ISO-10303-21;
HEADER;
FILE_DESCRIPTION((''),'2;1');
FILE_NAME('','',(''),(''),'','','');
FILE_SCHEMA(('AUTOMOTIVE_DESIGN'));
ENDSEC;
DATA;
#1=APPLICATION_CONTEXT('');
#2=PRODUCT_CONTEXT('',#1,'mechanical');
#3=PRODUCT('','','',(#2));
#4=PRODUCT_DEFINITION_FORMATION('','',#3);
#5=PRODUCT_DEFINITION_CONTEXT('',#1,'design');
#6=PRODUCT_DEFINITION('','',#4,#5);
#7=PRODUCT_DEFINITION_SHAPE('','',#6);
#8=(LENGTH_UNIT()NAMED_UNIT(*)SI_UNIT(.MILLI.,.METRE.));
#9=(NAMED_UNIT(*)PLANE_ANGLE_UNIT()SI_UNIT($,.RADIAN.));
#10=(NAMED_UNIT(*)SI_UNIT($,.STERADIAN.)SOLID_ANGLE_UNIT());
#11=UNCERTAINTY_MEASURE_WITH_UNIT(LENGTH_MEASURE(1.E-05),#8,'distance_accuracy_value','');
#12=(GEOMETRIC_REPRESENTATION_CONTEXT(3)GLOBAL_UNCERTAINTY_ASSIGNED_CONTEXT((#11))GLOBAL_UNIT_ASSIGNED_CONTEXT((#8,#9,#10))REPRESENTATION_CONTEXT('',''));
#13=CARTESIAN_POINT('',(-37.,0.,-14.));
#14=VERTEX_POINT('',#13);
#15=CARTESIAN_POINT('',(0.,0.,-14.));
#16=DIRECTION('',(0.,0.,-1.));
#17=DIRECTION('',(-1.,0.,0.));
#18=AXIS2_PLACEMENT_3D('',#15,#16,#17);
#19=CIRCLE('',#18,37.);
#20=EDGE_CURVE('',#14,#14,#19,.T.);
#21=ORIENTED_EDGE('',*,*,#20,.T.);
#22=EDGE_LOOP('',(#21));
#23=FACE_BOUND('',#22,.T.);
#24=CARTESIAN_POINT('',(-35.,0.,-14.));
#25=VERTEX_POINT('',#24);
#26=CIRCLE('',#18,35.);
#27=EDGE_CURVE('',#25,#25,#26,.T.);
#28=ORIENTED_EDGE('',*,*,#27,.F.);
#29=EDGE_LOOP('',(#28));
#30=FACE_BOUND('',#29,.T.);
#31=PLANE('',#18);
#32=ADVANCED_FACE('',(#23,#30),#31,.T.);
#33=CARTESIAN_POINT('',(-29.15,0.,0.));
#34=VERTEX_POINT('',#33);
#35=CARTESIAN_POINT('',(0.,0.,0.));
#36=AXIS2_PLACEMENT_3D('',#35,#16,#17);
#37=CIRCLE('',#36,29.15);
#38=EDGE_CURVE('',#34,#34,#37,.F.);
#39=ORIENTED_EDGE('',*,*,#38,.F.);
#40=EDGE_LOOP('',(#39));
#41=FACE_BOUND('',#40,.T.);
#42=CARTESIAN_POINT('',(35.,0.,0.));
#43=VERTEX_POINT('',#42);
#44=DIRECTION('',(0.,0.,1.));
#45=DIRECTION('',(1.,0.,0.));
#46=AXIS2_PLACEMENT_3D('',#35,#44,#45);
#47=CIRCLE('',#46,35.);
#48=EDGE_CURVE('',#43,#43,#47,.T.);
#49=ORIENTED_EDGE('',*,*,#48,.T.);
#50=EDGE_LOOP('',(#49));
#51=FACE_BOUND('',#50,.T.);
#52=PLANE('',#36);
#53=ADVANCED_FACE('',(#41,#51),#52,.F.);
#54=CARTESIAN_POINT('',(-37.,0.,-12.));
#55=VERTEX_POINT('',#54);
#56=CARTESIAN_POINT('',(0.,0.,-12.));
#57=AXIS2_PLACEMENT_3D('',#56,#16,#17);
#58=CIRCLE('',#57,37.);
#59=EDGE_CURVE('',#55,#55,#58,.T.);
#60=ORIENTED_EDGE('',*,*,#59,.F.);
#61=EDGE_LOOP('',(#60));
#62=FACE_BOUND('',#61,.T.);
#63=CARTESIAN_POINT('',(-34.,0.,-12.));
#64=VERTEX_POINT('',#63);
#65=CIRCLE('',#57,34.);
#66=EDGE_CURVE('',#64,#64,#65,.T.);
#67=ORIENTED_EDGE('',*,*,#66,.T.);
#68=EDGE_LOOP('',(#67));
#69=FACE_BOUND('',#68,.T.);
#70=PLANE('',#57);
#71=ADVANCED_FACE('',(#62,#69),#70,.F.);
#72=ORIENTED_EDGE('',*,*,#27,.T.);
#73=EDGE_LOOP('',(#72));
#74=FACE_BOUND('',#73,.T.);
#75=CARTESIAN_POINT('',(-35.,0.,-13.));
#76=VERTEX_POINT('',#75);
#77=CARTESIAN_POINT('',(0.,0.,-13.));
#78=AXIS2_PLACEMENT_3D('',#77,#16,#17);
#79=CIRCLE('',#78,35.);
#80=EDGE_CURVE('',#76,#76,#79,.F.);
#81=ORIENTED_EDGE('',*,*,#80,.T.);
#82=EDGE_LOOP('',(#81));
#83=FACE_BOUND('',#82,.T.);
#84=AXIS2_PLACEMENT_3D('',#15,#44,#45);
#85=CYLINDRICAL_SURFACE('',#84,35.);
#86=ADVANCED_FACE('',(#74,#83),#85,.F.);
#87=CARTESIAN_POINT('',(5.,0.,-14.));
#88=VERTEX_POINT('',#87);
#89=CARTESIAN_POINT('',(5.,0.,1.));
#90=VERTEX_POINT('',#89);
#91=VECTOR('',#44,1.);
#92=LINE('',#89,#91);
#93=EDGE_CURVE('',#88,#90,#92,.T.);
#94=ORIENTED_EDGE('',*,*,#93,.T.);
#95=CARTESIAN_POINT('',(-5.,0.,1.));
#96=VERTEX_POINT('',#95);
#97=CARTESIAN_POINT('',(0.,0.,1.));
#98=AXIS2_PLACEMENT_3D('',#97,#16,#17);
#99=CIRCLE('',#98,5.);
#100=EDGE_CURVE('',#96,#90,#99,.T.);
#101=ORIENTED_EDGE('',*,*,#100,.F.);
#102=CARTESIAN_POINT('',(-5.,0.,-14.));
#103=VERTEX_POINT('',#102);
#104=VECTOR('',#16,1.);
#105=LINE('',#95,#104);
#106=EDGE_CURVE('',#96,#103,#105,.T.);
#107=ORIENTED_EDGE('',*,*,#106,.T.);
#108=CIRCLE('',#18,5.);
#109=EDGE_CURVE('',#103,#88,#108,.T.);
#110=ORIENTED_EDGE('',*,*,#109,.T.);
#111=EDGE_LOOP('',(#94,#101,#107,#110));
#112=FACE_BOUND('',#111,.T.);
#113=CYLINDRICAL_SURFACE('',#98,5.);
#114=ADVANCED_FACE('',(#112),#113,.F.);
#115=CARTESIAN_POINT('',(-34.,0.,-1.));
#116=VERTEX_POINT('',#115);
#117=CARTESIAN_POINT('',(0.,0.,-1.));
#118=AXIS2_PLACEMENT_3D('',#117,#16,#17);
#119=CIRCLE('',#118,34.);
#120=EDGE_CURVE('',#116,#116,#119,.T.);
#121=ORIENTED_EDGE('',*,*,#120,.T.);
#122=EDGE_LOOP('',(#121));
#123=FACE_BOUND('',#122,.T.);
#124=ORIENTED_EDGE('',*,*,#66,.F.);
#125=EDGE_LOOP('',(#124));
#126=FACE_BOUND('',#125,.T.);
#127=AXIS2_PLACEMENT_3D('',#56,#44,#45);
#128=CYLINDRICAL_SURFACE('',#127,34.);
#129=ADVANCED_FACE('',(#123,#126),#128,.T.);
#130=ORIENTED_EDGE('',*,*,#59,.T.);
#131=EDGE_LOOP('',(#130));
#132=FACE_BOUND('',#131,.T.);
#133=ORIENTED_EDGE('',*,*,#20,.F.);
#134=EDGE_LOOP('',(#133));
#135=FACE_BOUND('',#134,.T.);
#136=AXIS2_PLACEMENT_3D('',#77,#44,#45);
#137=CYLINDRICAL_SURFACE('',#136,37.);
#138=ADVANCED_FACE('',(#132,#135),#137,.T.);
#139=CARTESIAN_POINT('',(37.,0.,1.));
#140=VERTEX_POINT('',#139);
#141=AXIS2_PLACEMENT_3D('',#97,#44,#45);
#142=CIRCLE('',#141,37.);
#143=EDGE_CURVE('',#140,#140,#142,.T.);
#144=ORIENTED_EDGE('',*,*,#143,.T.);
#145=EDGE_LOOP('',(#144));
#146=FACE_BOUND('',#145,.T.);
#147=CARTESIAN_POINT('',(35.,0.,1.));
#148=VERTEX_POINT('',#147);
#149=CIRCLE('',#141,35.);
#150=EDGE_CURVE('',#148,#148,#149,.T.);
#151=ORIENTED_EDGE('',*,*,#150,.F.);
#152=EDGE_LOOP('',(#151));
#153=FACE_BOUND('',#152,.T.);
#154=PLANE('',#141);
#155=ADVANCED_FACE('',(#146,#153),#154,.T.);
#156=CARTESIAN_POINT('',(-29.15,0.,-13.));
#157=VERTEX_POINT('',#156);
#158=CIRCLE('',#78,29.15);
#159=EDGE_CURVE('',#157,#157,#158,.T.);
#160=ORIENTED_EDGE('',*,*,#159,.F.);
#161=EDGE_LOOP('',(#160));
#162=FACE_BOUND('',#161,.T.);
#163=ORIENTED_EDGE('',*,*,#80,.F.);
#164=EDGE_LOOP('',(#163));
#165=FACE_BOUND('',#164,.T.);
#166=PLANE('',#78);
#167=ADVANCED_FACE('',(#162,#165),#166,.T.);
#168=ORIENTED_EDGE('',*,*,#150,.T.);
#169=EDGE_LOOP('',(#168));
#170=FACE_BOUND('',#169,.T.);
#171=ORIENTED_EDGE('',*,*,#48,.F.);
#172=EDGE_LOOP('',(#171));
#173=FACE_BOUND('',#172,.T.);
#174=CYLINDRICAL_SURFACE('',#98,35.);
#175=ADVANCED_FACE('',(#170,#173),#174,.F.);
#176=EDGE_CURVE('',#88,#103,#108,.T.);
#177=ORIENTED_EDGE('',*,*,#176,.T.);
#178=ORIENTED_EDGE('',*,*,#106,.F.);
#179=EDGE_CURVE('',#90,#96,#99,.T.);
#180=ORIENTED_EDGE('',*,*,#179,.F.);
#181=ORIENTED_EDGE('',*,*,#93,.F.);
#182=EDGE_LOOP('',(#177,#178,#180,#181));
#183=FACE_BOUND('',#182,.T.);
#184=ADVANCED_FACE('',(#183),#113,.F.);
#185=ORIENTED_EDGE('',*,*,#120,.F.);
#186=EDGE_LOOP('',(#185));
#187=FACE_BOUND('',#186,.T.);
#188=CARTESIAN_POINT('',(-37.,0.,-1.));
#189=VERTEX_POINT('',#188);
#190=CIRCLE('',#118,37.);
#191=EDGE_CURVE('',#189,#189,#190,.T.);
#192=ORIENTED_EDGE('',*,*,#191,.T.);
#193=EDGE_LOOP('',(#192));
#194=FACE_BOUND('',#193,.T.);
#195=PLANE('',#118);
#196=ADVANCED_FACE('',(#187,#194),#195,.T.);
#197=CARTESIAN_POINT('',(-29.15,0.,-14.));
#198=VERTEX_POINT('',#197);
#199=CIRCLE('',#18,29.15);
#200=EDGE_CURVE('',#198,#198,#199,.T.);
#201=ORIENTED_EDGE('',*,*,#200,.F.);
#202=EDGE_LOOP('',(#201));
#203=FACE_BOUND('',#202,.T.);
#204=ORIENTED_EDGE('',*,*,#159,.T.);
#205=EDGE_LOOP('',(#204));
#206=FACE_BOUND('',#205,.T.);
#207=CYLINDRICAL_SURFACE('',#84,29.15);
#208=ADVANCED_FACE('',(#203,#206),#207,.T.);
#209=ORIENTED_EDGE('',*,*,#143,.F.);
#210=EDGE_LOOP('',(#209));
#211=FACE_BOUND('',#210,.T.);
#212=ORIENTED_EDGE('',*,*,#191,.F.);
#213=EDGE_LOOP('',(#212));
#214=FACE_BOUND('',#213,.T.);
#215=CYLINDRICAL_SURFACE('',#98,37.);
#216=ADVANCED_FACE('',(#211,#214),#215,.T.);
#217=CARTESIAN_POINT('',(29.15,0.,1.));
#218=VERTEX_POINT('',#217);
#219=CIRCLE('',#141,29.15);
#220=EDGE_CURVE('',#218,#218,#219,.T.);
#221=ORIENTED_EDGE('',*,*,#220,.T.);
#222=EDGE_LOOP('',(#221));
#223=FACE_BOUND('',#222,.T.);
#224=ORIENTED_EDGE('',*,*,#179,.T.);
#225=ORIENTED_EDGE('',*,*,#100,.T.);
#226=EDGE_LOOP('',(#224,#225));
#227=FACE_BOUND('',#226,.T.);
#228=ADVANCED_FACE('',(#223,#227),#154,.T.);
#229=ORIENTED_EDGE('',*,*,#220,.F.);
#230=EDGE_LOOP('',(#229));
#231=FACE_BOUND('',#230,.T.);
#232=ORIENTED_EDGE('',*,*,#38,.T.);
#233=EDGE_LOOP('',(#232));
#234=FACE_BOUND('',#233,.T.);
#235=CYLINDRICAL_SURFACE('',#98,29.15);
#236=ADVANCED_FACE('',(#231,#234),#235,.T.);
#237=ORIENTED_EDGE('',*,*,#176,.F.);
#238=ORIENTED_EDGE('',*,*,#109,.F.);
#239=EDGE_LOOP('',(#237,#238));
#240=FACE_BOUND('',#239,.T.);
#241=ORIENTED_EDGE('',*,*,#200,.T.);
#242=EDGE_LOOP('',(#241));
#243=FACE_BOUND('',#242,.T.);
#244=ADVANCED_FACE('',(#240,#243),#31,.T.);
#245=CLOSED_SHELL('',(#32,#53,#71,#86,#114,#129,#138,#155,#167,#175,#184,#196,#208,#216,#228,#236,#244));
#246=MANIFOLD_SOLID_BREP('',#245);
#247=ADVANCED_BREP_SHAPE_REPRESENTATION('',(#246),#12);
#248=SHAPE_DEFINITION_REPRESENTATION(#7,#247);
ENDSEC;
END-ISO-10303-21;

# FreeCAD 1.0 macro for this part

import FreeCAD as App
import Part
import Sketcher

doc = App.newDocument("Part")
body = doc.addObject("PartDesign::Body", "Body")

sketch1 = body.newObject("Sketcher::SketchObject", "Sketch")
sketch1.AttachmentSupport = (doc.getObject("XY_Plane"), [""])
sketch1.MapMode = "FlatFace"
sketch1.addGeometry([
    Part.Circle(App.Vector(0, 0, 0), App.Vector(0, 0, 1), 37),
    Part.Circle(App.Vector(0, 0, 0), App.Vector(0, 0, 1), 35),
], False)
sketch1.addConstraint([
    Sketcher.Constraint("Coincident", 0, 3, -1, 1),
    Sketcher.Constraint("Coincident", 1, 3, -1, 1),
    Sketcher.Constraint("Diameter", 0, 74.0),
    Sketcher.Constraint("Diameter", 1, 70.0),
])
pad1 = body.newObject("PartDesign::Pad", "Pad")
pad1.Profile = sketch1
pad1.Length = 1
body2 = doc.addObject("PartDesign::Body", "Body001")

sketch2 = body2.newObject("Sketcher::SketchObject", "Sketch001")
sketch2.AttachmentSupport = (doc.getObject("XY_Plane001"), [""])
sketch2.MapMode = "FlatFace"
sketch2.addGeometry(Part.Circle(App.Vector(0, 0, 0), App.Vector(0, 0, 1), 29), False)
sketch2.addConstraint([
    Sketcher.Constraint("Coincident", 0, 3, -1, 1),
    Sketcher.Constraint("Diameter", 0, 58.3),
])
pad2 = body2.newObject("PartDesign::Pad", "Pad001")
pad2.Profile = sketch2
pad2.Length = 1
body.AllowCompound = True
doc.recompute()

boolean = body.newObject("PartDesign::Boolean", "Boolean")
boolean.Type = "Fuse"
boolean.addObjects([body2])

sketch3 = body.newObject("Sketcher::SketchObject", "Sketch002")
sketch3.AttachmentSupport = (doc.getObject("XY_Plane"), [""])
sketch3.MapMode = "FlatFace"
sketch3.AttachmentOffset = App.Placement(App.Vector(0, 0, -1), App.Rotation())
sketch3.addGeometry(Part.Circle(App.Vector(0, 0, 0), App.Vector(0, 0, 1), 37), False)
sketch3.addConstraint([
    Sketcher.Constraint("Coincident", 0, 3, -1, 1),
    Sketcher.Constraint("Diameter", 0, 74.0),
])
pad3 = body.newObject("PartDesign::Pad", "Pad002")
pad3.Profile = sketch3
pad3.Length = 1

sketch4 = body.newObject("Sketcher::SketchObject", "Sketch003")
sketch4.AttachmentSupport = (doc.getObject("XY_Plane"), [""])
sketch4.MapMode = "FlatFace"
sketch4.AttachmentOffset = App.Placement(App.Vector(0, 0, -1), App.Rotation())
sketch4.addGeometry(Part.Circle(App.Vector(0, 0, 0), App.Vector(0, 0, 1), 34), False)
sketch4.addConstraint([
    Sketcher.Constraint("Coincident", 0, 3, -1, 1),
    Sketcher.Constraint("Diameter", 0, 68.0),
])
pad4 = body.newObject("PartDesign::Pad", "Pad003")
pad4.Profile = sketch4
pad4.Length = 11
pad4.Reversed = True

sketch5 = body.newObject("Sketcher::SketchObject", "Sketch004")
sketch5.AttachmentSupport = (doc.getObject("XY_Plane"), [""])
sketch5.MapMode = "FlatFace"
sketch5.AttachmentOffset = App.Placement(App.Vector(0, 0, -13), App.Rotation())
sketch5.addGeometry(Part.Circle(App.Vector(0, 0, 0), App.Vector(0, 0, 1), 37), False)
sketch5.addConstraint([
    Sketcher.Constraint("Coincident", 0, 3, -1, 1),
    Sketcher.Constraint("Diameter", 0, 74.0),
])
pad5 = body.newObject("PartDesign::Pad", "Pad004")
pad5.Profile = sketch5
pad5.Length = 1

sketch6 = body.newObject("Sketcher::SketchObject", "Sketch005")
sketch6.AttachmentSupport = (doc.getObject("XY_Plane"), [""])
sketch6.MapMode = "FlatFace"
sketch6.AttachmentOffset = App.Placement(App.Vector(0, 0, -14), App.Rotation())
sketch6.addGeometry([
    Part.Circle(App.Vector(0, 0, 0), App.Vector(0, 0, 1), 37),
    Part.Circle(App.Vector(0, 0, 0), App.Vector(0, 0, 1), 35),
    Part.Circle(App.Vector(0, 0, 0), App.Vector(0, 0, 1), 29),
], False)
sketch6.addConstraint([
    Sketcher.Constraint("Coincident", 0, 3, -1, 1),
    Sketcher.Constraint("Coincident", 1, 3, -1, 1),
    Sketcher.Constraint("Coincident", 2, 3, -1, 1),
    Sketcher.Constraint("Diameter", 0, 74.0),
    Sketcher.Constraint("Diameter", 1, 70.0),
    Sketcher.Constraint("Diameter", 2, 58.3),
])
pad6 = body.newObject("PartDesign::Pad", "Pad005")
pad6.Profile = sketch6
pad6.Length = 1

sketch7 = body.newObject("Sketcher::SketchObject", "Sketch006")
sketch7.AttachmentSupport = (doc.getObject("XY_Plane"), [""])
sketch7.MapMode = "FlatFace"
sketch7.AttachmentOffset = App.Placement(App.Vector(0, 0, -14), App.Rotation())
sketch7.addGeometry(Part.Circle(App.Vector(0, 0, 0), App.Vector(0, 0, 1), 5), False)
sketch7.addConstraint([
    Sketcher.Constraint("Coincident", 0, 3, -1, 1),
    Sketcher.Constraint("Diameter", 0, 10.0),
])
pocket1 = body.newObject("PartDesign::Pocket", "Pocket")
pocket1.Profile = sketch7
pocket1.Type = "ThroughAll"
pocket1.Reversed = True

doc.recompute()
